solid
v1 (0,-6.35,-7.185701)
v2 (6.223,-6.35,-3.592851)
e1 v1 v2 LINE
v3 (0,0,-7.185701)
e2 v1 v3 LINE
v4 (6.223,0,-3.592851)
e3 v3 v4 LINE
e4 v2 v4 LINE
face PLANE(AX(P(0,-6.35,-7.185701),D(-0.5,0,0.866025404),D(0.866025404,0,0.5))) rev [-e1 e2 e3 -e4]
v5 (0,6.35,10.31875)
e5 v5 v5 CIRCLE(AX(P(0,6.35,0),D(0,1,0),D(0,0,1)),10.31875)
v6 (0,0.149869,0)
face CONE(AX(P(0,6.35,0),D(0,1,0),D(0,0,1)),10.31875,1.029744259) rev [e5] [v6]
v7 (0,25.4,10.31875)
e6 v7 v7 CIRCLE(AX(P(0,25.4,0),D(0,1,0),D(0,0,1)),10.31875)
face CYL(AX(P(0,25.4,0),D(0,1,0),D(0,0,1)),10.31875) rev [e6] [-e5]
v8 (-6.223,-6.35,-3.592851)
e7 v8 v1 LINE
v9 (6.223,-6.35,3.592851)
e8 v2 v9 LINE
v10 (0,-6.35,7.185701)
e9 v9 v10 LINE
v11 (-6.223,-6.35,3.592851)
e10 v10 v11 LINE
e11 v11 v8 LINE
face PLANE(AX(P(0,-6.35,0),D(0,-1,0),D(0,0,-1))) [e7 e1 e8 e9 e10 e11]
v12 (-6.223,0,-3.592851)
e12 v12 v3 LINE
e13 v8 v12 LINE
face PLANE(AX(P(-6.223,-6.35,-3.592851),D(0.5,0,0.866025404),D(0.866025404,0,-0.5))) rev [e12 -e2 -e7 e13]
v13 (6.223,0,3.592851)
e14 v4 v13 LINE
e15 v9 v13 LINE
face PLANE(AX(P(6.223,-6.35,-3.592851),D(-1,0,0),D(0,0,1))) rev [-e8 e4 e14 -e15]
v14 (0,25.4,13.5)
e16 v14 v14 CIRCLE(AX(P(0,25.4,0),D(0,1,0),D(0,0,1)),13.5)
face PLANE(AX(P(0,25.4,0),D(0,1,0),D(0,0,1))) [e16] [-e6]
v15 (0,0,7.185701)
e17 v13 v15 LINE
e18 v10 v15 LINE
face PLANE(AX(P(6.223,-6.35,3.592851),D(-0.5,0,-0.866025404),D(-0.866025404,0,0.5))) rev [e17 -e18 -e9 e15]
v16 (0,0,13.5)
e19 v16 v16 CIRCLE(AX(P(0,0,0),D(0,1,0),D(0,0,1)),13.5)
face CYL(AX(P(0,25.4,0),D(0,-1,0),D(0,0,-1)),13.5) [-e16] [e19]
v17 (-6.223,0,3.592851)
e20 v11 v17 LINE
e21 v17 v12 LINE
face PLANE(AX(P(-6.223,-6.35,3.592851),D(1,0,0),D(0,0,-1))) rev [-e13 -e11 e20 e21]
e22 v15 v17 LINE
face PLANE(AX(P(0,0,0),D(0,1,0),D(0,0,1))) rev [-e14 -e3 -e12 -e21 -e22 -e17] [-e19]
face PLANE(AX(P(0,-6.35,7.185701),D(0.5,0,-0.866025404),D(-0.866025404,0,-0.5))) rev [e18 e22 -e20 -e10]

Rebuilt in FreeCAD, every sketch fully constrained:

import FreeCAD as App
import Part
import Sketcher
Q = App.Units.Quantity


def add_polygon(sketch, points):
    """Adds a closed chain of lines whose ends are joined by coincident constraints."""
    first, n = sketch.GeometryCount, len(points)
    for a, b in zip(points, points[1:] + points[:1]):
        sketch.addGeometry(Part.LineSegment(App.Vector(*a, 0), App.Vector(*b, 0)), False)
    for i in range(n):
        sketch.addConstraint(Sketcher.Constraint("Coincident", first + i, 2, first + (i + 1) % n, 1))

doc = App.newDocument("Part")
body = doc.addObject("PartDesign::Body", "Body")

sketch1 = body.newObject("Sketcher::SketchObject", "Sketch")
sketch1.AttachmentSupport = (doc.getObject("XZ_Plane"), [""])
sketch1.MapMode = "FlatFace"
sketch1.addGeometry(Part.Circle(App.Vector(0, 0, 0), App.Vector(0, 0, 1), 14), False)
sketch1.addConstraint([
    Sketcher.Constraint("Coincident", 0, 3, -1, 1),
    Sketcher.Constraint("Diameter", 0, Q("27 mm")),
])
pad1 = body.newObject("PartDesign::Pad", "Pad")
pad1.Profile = sketch1
pad1.Length = Q("1 in")
pad1.Reversed = True

sketch2 = body.newObject("Sketcher::SketchObject", "Sketch001")
sketch2.AttachmentSupport = (doc.getObject("XZ_Plane"), [""])
sketch2.MapMode = "FlatFace"
sketch2.AttachmentOffset = App.Placement(App.Vector(0, 0, -1 * 25.4), App.Rotation())
sketch2.addGeometry(Part.Circle(App.Vector(0, 0, 0), App.Vector(0, 0, 1), 10), False)
sketch2.addConstraint([
    Sketcher.Constraint("Coincident", 0, 3, -1, 1),
    Sketcher.Constraint("Diameter", 0, Q("0.8125 in")),
])
doc.recompute()
hole = body.newObject("PartDesign::Hole", "Hole")
hole.Profile = sketch2
hole.ThreadType = "None"
hole.Diameter = Q("0.8125 in")
hole.DepthType = "Dimension"
hole.Depth = Q("0.75 in")
hole.DrillPoint = "Angled"
hole.DrillPointAngle = 118
hole.Reversed = True

sketch3 = body.newObject("Sketcher::SketchObject", "Sketch002")
sketch3.AttachmentSupport = (doc.getObject("XZ_Plane"), [""])
sketch3.MapMode = "FlatFace"
add_polygon(sketch3, [(6, 4), (0, 7), (-6, 4), (-6, -4), (0, -7), (6, -4)])
sketch3.addConstraint([
    Sketcher.Constraint("Vertical", 2),
    Sketcher.Constraint("Vertical", 5),
    Sketcher.Constraint("Symmetric", 0, 2, 3, 2, -1, 1),
    Sketcher.Constraint("Symmetric", 1, 2, 4, 2, -1, 1),
    Sketcher.Constraint("PointOnObject", 0, 2, -2),
    Sketcher.Constraint("Parallel", 0, 3),
    Sketcher.Constraint("Horizontal", 2, 2, 4, 2),
    Sketcher.Constraint("Angle", 0, Q("150 deg")),
    Sketcher.Constraint("DistanceX", 2, 2, 4, 2, Q("0.49 in")),
    Sketcher.Constraint("DistanceY", 2, 2, 2, 1, Q("7.185701 mm")),
])
pad2 = body.newObject("PartDesign::Pad", "Pad001")
pad2.Profile = sketch3
pad2.Length = Q("0.25 in")

doc.recompute()
